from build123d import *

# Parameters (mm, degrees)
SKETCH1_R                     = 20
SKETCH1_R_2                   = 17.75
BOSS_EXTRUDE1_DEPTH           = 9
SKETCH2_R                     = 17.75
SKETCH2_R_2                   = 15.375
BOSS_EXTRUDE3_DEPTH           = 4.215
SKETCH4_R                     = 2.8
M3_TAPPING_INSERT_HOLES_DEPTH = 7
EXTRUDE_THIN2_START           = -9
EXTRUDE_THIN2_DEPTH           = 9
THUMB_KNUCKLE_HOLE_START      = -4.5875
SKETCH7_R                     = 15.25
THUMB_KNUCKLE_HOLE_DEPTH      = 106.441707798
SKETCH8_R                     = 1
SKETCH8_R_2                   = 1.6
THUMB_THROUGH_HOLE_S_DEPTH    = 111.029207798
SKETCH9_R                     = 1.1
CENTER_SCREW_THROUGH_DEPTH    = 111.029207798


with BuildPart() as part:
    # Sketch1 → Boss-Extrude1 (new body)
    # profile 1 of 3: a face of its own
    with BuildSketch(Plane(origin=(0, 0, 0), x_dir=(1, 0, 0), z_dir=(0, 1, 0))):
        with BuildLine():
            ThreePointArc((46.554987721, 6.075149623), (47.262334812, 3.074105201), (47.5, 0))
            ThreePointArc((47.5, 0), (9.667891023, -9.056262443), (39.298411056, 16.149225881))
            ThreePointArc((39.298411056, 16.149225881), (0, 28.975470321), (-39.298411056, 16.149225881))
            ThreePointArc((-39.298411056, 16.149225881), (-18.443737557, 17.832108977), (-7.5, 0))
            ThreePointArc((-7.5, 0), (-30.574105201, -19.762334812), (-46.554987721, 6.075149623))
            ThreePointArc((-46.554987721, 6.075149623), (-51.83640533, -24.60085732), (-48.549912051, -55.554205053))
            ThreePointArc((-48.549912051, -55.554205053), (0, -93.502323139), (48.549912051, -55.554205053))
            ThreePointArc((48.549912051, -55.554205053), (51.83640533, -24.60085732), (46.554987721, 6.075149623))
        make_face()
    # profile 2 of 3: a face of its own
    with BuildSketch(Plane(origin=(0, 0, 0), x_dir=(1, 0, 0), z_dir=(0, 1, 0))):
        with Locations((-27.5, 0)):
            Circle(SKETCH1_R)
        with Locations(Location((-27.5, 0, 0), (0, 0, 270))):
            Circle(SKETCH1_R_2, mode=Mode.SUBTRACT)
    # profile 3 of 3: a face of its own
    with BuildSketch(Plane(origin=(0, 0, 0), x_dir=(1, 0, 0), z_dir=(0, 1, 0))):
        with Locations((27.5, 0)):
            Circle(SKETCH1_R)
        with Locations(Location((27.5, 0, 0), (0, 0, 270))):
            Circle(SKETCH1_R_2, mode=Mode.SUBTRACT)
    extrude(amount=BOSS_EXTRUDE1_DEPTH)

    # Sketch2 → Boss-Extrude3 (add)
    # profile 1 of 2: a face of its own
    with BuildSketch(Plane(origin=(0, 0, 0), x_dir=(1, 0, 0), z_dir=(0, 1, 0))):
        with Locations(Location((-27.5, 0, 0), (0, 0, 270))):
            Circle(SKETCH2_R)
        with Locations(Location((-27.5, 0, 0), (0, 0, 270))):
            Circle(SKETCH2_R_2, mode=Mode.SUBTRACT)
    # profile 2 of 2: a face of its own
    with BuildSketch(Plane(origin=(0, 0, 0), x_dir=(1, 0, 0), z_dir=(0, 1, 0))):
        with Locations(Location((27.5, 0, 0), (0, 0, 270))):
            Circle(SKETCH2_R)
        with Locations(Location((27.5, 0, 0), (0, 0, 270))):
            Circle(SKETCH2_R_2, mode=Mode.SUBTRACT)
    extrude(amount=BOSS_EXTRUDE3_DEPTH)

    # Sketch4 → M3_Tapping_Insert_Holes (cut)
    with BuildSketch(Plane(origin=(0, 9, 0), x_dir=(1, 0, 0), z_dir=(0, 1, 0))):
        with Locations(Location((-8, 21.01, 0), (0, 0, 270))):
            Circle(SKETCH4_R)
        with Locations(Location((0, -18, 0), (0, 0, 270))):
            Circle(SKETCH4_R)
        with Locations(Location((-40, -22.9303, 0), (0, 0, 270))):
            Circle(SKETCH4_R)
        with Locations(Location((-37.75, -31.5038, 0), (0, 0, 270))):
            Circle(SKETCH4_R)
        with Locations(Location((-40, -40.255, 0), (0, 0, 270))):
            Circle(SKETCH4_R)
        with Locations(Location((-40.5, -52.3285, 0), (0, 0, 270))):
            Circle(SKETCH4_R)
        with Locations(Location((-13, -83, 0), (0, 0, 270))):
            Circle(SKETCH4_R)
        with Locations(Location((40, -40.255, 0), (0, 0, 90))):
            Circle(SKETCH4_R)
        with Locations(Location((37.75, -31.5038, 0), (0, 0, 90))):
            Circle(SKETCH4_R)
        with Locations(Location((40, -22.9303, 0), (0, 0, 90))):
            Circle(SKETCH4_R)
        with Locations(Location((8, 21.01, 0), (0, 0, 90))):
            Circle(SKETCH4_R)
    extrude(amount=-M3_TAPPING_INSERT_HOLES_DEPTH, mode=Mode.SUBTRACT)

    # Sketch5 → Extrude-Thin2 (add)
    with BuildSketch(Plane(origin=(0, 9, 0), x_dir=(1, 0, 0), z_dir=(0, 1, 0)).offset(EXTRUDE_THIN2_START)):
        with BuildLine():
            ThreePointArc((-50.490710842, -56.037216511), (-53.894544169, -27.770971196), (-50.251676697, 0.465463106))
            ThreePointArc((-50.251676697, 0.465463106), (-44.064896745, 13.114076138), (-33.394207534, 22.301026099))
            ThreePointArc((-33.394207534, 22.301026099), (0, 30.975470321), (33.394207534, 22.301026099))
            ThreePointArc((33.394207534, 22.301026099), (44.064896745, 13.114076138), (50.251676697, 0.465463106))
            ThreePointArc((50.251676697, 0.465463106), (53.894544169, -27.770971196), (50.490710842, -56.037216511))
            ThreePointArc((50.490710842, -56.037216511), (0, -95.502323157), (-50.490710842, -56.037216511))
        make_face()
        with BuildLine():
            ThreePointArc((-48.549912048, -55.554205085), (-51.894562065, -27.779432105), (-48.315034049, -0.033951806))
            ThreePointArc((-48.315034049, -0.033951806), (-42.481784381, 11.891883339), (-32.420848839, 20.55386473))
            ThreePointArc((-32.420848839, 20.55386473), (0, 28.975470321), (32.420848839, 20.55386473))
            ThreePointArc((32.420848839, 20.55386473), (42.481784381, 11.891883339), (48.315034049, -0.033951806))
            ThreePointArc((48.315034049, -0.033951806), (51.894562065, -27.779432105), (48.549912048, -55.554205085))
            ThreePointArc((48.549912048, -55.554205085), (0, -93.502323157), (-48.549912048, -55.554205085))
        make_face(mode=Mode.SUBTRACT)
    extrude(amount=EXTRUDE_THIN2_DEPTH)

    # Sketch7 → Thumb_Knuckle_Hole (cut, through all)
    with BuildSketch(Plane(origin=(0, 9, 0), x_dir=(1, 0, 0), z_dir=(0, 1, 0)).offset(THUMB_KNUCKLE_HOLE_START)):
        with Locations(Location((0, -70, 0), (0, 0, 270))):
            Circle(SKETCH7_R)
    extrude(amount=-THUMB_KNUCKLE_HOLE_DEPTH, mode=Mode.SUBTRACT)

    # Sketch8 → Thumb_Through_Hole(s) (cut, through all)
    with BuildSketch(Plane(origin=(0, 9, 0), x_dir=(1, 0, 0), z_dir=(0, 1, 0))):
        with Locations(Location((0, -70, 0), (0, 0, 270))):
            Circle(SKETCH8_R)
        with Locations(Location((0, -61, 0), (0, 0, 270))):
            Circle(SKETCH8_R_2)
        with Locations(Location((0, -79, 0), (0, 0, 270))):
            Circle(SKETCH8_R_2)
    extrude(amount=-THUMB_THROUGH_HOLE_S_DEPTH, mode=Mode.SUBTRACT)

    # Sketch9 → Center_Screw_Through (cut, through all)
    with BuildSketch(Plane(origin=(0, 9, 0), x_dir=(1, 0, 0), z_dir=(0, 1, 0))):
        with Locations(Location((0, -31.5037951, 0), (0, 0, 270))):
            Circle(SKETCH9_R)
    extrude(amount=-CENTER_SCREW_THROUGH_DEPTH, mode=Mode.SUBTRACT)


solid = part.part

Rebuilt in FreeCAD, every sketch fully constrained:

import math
import FreeCAD as App
import Part
import Sketcher
from FreeCAD import Vector
Q = App.Units.Quantity

doc = App.newDocument("Part")
body = doc.addObject("PartDesign::Body", "Body")

# Sketch on XZ plane
sketch1 = body.newObject("Sketcher::SketchObject", "Sketch")
sketch1.AttachmentSupport = (doc.getObject("XZ_Plane"), [""])
sketch1.MapMode = "FlatFace"
sketch1.addGeometry(Part.ArcOfCircle(Part.Circle(Vector(0, 38, 0), Vector(0, 0, 1), 67), math.radians(-126), math.radians(-54)), False)
sketch1.addGeometry(Part.ArcOfCircle(Part.Circle(Vector(-28, 0, 0), Vector(0, 0, 1), 20), math.radians(-162), math.radians(-126)), False)
sketch1.addGeometry(Part.ArcOfCircle(Part.Circle(Vector(61, 28, 0), Vector(0, 0, 1), 113), math.radians(166), math.radians(198)), False)
sketch1.addGeometry(Part.ArcOfCircle(Part.Circle(Vector(0, 43, 0), Vector(0, 0, 1), 50), math.radians(14), math.radians(166)), False)
sketch1.addGeometry(Part.ArcOfCircle(Part.Circle(Vector(-61, 28, 0), Vector(0, 0, 1), 113), math.radians(-18), math.radians(14)), False)
sketch1.addGeometry(Part.ArcOfCircle(Part.Circle(Vector(28, 0, 0), Vector(0, 0, 1), 20), math.radians(-54), math.radians(-18)), False)
sketch1.addGeometry(Part.Circle(Vector(28, 0, 0), Vector(0, 0, 1), 18), False)
sketch1.addGeometry(Part.Circle(Vector(-28, 0, 0), Vector(0, 0, 1), 18), False)
sketch1.addConstraint(Sketcher.Constraint("Tangent", 0, 1, 1, 2))
sketch1.addConstraint(Sketcher.Constraint("Tangent", 1, 1, 2, 2))
sketch1.addConstraint(Sketcher.Constraint("Tangent", 2, 1, 3, 2))
sketch1.addConstraint(Sketcher.Constraint("Tangent", 3, 1, 4, 2))
sketch1.addConstraint(Sketcher.Constraint("Tangent", 4, 1, 5, 2))
sketch1.addConstraint(Sketcher.Constraint("Tangent", 5, 1, 0, 2))
sketch1.addConstraint(Sketcher.Constraint("Coincident", 6, 3, 5, 3))
sketch1.addConstraint(Sketcher.Constraint("Coincident", 7, 3, 1, 3))
sketch1.addConstraint(Sketcher.Constraint("Equal", 2, 4))
sketch1.addConstraint(Sketcher.Constraint("Equal", 1, 5))
sketch1.addConstraint(Sketcher.Constraint("Equal", 6, 7))
sketch1.addConstraint(Sketcher.Constraint("Symmetric", 1, 3, 5, 3, -1, 1))
sketch1.addConstraint(Sketcher.Constraint("Symmetric", 2, 3, 4, 3, -2))
sketch1.addConstraint(Sketcher.Constraint("Radius", 1, Q("20 mm")))
sketch1.addConstraint(Sketcher.Constraint("Diameter", 6, Q("35.5 mm")))
sketch1.addConstraint(Sketcher.Constraint("DistanceX", 1, 3, 5, 3, Q("55 mm")))
sketch1.addConstraint(Sketcher.Constraint("Radius", 2, Q("113.026801 mm")))
sketch1.addConstraint(Sketcher.Constraint("Radius", 0, Q("66.616447 mm")))
sketch1.addConstraint(Sketcher.Constraint("Radius", 3, Q("50.030856 mm")))
sketch1.addConstraint(Sketcher.Constraint("DistanceY", 1, 1, -1, 1, Q("6.07515 mm")))
pad1 = body.newObject("PartDesign::Pad", "Pad")
pad1.Profile = sketch1
pad1.Length = 9
pad1.Reversed = True

# Sketch on XZ plane
sketch2 = body.newObject("Sketcher::SketchObject", "Sketch001")
sketch2.AttachmentSupport = (doc.getObject("XZ_Plane"), [""])
sketch2.MapMode = "FlatFace"
sketch2.addGeometry(Part.Circle(Vector(-28, 0, 0), Vector(0, 0, 1), 18), False)
sketch2.addGeometry(Part.Circle(Vector(-28, 0, 0), Vector(0, 0, 1), 15), False)
sketch2.addGeometry(Part.Circle(Vector(28, 0, 0), Vector(0, 0, 1), 18), False)
sketch2.addGeometry(Part.Circle(Vector(28, 0, 0), Vector(0, 0, 1), 15), False)
sketch2.addConstraint(Sketcher.Constraint("Coincident", 1, 3, 0, 3))
sketch2.addConstraint(Sketcher.Constraint("Coincident", 3, 3, 2, 3))
sketch2.addConstraint(Sketcher.Constraint("Equal", 0, 2))
sketch2.addConstraint(Sketcher.Constraint("Equal", 1, 3))
sketch2.addConstraint(Sketcher.Constraint("Symmetric", 0, 3, 2, 3, -1, 1))
sketch2.addConstraint(Sketcher.Constraint("PointOnObject", 0, 3, -1))
sketch2.addConstraint(Sketcher.Constraint("Diameter", 0, Q("35.5 mm")))
sketch2.addConstraint(Sketcher.Constraint("Diameter", 1, Q("30.75 mm")))
sketch2.addConstraint(Sketcher.Constraint("DistanceX", 0, 3, 2, 3, Q("55 mm")))
pad2 = body.newObject("PartDesign::Pad", "Pad001")
pad2.Profile = sketch2
pad2.Length = 4.215
pad2.Reversed = True

# Sketch on XZ plane
sketch3 = body.newObject("Sketcher::SketchObject", "Sketch002")
sketch3.AttachmentSupport = (doc.getObject("XZ_Plane"), [""])
sketch3.MapMode = "FlatFace"
sketch3.AttachmentOffset = App.Placement(Vector(0, 0, -9), App.Rotation())
sketch3.addGeometry(Part.Circle(Vector(-8, -21, 0), Vector(0, 0, 1), 2.8), False)
sketch3.addGeometry(Part.Circle(Vector(0, 18, 0), Vector(0, 0, 1), 2.8), False)
sketch3.addGeometry(Part.Circle(Vector(-40, 22.9, 0), Vector(0, 0, 1), 2.8), False)
sketch3.addGeometry(Part.Circle(Vector(-37.8, 31.5, 0), Vector(0, 0, 1), 2.8), False)
sketch3.addGeometry(Part.Circle(Vector(-40, 40.3, 0), Vector(0, 0, 1), 2.8), False)
sketch3.addGeometry(Part.Circle(Vector(-40.5, 52.3, 0), Vector(0, 0, 1), 2.8), False)
sketch3.addGeometry(Part.Circle(Vector(-13, 83, 0), Vector(0, 0, 1), 2.8), False)
sketch3.addGeometry(Part.Circle(Vector(40, 40.3, 0), Vector(0, 0, 1), 2.8), False)
sketch3.addGeometry(Part.Circle(Vector(37.8, 31.5, 0), Vector(0, 0, 1), 2.8), False)
sketch3.addGeometry(Part.Circle(Vector(40, 22.9, 0), Vector(0, 0, 1), 2.8), False)
sketch3.addGeometry(Part.Circle(Vector(8, -21, 0), Vector(0, 0, 1), 2.8), False)
sketch3.addConstraint(Sketcher.Constraint("Equal", 0, 1))
sketch3.addConstraint(Sketcher.Constraint("Equal", 1, 2))
sketch3.addConstraint(Sketcher.Constraint("Equal", 2, 3))
sketch3.addConstraint(Sketcher.Constraint("Equal", 3, 4))
sketch3.addConstraint(Sketcher.Constraint("Equal", 4, 5))
sketch3.addConstraint(Sketcher.Constraint("Equal", 5, 6))
sketch3.addConstraint(Sketcher.Constraint("Equal", 6, 7))
sketch3.addConstraint(Sketcher.Constraint("Equal", 7, 8))
sketch3.addConstraint(Sketcher.Constraint("Equal", 8, 9))
sketch3.addConstraint(Sketcher.Constraint("Equal", 9, 10))
sketch3.addConstraint(Sketcher.Constraint("Symmetric", 4, 3, 7, 3, -2))
sketch3.addConstraint(Sketcher.Constraint("Symmetric", 3, 3, 8, 3, -2))
sketch3.addConstraint(Sketcher.Constraint("Symmetric", 2, 3, 9, 3, -2))
sketch3.addConstraint(Sketcher.Constraint("Symmetric", 0, 3, 10, 3, -2))
sketch3.addConstraint(Sketcher.Constraint("PointOnObject", 1, 3, -2))
sketch3.addConstraint(Sketcher.Constraint("Vertical", 2, 3, 4, 3))
sketch3.addConstraint(Sketcher.Constraint("Diameter", 0, Q("5.6 mm")))
sketch3.addConstraint(Sketcher.Constraint("DistanceX", 0, 3, -1, 1, Q("8 mm")))
sketch3.addConstraint(Sketcher.Constraint("DistanceY", -1, 1, 1, 3, Q("18 mm")))
sketch3.addConstraint(Sketcher.Constraint("DistanceX", 2, 3, -1, 1, Q("40 mm")))
sketch3.addConstraint(Sketcher.Constraint("DistanceX", 6, 3, -1, 1, Q("13 mm")))
sketch3.addConstraint(Sketcher.Constraint("DistanceY", -1, 1, 6, 3, Q("83 mm")))
sketch3.addConstraint(Sketcher.Constraint("DistanceX", 5, 3, -1, 1, Q("40.5 mm")))
sketch3.addConstraint(Sketcher.Constraint("DistanceX", 3, 3, 8, 3, Q("75.5 mm")))
sketch3.addConstraint(Sketcher.Constraint("DistanceY", 0, 3, -1, 1, Q("21.01 mm")))
sketch3.addConstraint(Sketcher.Constraint("DistanceY", -1, 1, 4, 3, Q("40.255 mm")))
sketch3.addConstraint(Sketcher.Constraint("DistanceY", -1, 1, 2, 3, Q("22.9303 mm")))
sketch3.addConstraint(Sketcher.Constraint("DistanceY", -1, 1, 3, 3, Q("31.5038 mm")))
sketch3.addConstraint(Sketcher.Constraint("DistanceY", -1, 1, 5, 3, Q("52.3285 mm")))
pocket1 = body.newObject("PartDesign::Pocket", "Pocket")
pocket1.Profile = sketch3
pocket1.Length = 7
pocket1.Reversed = True

# Sketch on XZ plane
sketch4 = body.newObject("Sketcher::SketchObject", "Sketch003")
sketch4.AttachmentSupport = (doc.getObject("XZ_Plane"), [""])
sketch4.MapMode = "FlatFace"
sketch4.addGeometry(Part.ArcOfCircle(Part.Circle(Vector(61, 28, 0), Vector(0, 0, 1), 115), math.radians(166), math.radians(194)), False)
sketch4.addGeometry(Part.ArcOfCircle(Part.Circle(Vector(0, 43, 0), Vector(0, 0, 1), 52), math.radians(14), math.radians(166)), False)
sketch4.addGeometry(Part.ArcOfCircle(Part.Circle(Vector(-61, 28, 0), Vector(0, 0, 1), 115), math.radians(-14), math.radians(14)), False)
sketch4.addGeometry(Part.ArcOfCircle(Part.Circle(Vector(16, 8, 0), Vector(0, 0, 1), 35), math.radians(-61), math.radians(-14)), False)
sketch4.addGeometry(Part.ArcOfCircle(Part.Circle(Vector(0, 38, 0), Vector(0, 0, 1), 69), math.radians(-119), math.radians(-61)), False)
sketch4.addGeometry(Part.ArcOfCircle(Part.Circle(Vector(-16, 8, 0), Vector(0, 0, 1), 35), math.radians(-166), math.radians(-119)), False)
sketch4.addGeometry(Part.ArcOfCircle(Part.Circle(Vector(61, 28, 0), Vector(0, 0, 1), 113), math.radians(166), math.radians(194)), False)
sketch4.addGeometry(Part.ArcOfCircle(Part.Circle(Vector(-16, 8, 0), Vector(0, 0, 1), 33), math.radians(-166), math.radians(-119)), False)
sketch4.addGeometry(Part.ArcOfCircle(Part.Circle(Vector(0, 38, 0), Vector(0, 0, 1), 67), math.radians(-119), math.radians(-61)), False)
sketch4.addGeometry(Part.ArcOfCircle(Part.Circle(Vector(16, 8, 0), Vector(0, 0, 1), 33), math.radians(-61), math.radians(-14)), False)
sketch4.addGeometry(Part.ArcOfCircle(Part.Circle(Vector(-61, 28, 0), Vector(0, 0, 1), 113), math.radians(-14), math.radians(14)), False)
sketch4.addGeometry(Part.ArcOfCircle(Part.Circle(Vector(0, 43, 0), Vector(0, 0, 1), 50), math.radians(14), math.radians(166)), False)
sketch4.addConstraint(Sketcher.Constraint("Tangent", 0, 1, 1, 2))
sketch4.addConstraint(Sketcher.Constraint("Tangent", 1, 1, 2, 2))
sketch4.addConstraint(Sketcher.Constraint("Tangent", 2, 1, 3, 2))
sketch4.addConstraint(Sketcher.Constraint("Tangent", 3, 1, 4, 2))
sketch4.addConstraint(Sketcher.Constraint("Tangent", 4, 1, 5, 2))
sketch4.addConstraint(Sketcher.Constraint("Tangent", 5, 1, 0, 2))
sketch4.addConstraint(Sketcher.Constraint("Tangent", 6, 2, 7, 1))
sketch4.addConstraint(Sketcher.Constraint("Tangent", 7, 2, 8, 1))
sketch4.addConstraint(Sketcher.Constraint("Tangent", 8, 2, 9, 1))
sketch4.addConstraint(Sketcher.Constraint("Tangent", 9, 2, 10, 1))
sketch4.addConstraint(Sketcher.Constraint("Tangent", 10, 2, 11, 1))
sketch4.addConstraint(Sketcher.Constraint("Tangent", 11, 2, 6, 1))
sketch4.addConstraint(Sketcher.Constraint("Coincident", 6, 3, 0, 3))
sketch4.addConstraint(Sketcher.Constraint("Coincident", 7, 3, 5, 3))
sketch4.addConstraint(Sketcher.Constraint("Coincident", 8, 3, 4, 3))
sketch4.addConstraint(Sketcher.Constraint("Coincident", 9, 3, 3, 3))
sketch4.addConstraint(Sketcher.Constraint("Coincident", 10, 3, 2, 3))
sketch4.addConstraint(Sketcher.Constraint("Equal", 0, 2))
sketch4.addConstraint(Sketcher.Constraint("Equal", 3, 5))
sketch4.addConstraint(Sketcher.Constraint("Symmetric", 0, 3, 2, 3, -2))
sketch4.addConstraint(Sketcher.Constraint("PointOnObject", 4, 3, -2))
sketch4.addConstraint(Sketcher.Constraint("Radius", 3, Q("35 mm")))
sketch4.addConstraint(Sketcher.Constraint("Radius", 7, Q("33 mm")))
sketch4.addConstraint(Sketcher.Constraint("Radius", 0, Q("115.026801 mm")))
sketch4.addConstraint(Sketcher.Constraint("Radius", 1, Q("52.030856 mm")))
sketch4.addConstraint(Sketcher.Constraint("Radius", 4, Q("68.616447 mm")))
sketch4.addConstraint(Sketcher.Constraint("Radius", 11, Q("50.030856 mm")))
sketch4.addConstraint(Sketcher.Constraint("DistanceY", 7, 2, 5, 1, Q("20.088402 mm")))
sketch4.addConstraint(Sketcher.Constraint("DistanceX", -1, 1, 3, 3, Q("16.36043 mm")))
sketch4.addConstraint(Sketcher.Constraint("DistanceY", -1, 1, 6, 2, Q("0.033952 mm")))
pad3 = body.newObject("PartDesign::Pad", "Pad002")
pad3.Profile = sketch4
pad3.Length = 9
pad3.Reversed = True

# Sketch on XZ plane
sketch5 = body.newObject("Sketcher::SketchObject", "Sketch004")
sketch5.AttachmentSupport = (doc.getObject("XZ_Plane"), [""])
sketch5.MapMode = "FlatFace"
sketch5.AttachmentOffset = App.Placement(Vector(0, 0, -4.4125), App.Rotation())
sketch5.addGeometry(Part.Circle(Vector(0, 70, 0), Vector(0, 0, 1), 15), False)
sketch5.addConstraint(Sketcher.Constraint("PointOnObject", 0, 3, -2))
sketch5.addConstraint(Sketcher.Constraint("Diameter", 0, Q("30.5 mm")))
sketch5.addConstraint(Sketcher.Constraint("DistanceY", -1, 1, 0, 3, Q("70 mm")))
pocket2 = body.newObject("PartDesign::Pocket", "Pocket001")
pocket2.Profile = sketch5
pocket2.Type = "ThroughAll"
pocket2.Reversed = True

# Sketch on XZ plane
sketch6 = body.newObject("Sketcher::SketchObject", "Sketch005")
sketch6.AttachmentSupport = (doc.getObject("XZ_Plane"), [""])
sketch6.MapMode = "FlatFace"
sketch6.AttachmentOffset = App.Placement(Vector(0, 0, -9), App.Rotation())
sketch6.addGeometry(Part.Circle(Vector(0, 70, 0), Vector(0, 0, 1), 1), False)
sketch6.addGeometry(Part.Circle(Vector(0, 61, 0), Vector(0, 0, 1), 1.6), False)
sketch6.addGeometry(Part.Circle(Vector(0, 79, 0), Vector(0, 0, 1), 1.6), False)
sketch6.addConstraint(Sketcher.Constraint("Equal", 1, 2))
sketch6.addConstraint(Sketcher.Constraint("PointOnObject", 0, 3, -2))
sketch6.addConstraint(Sketcher.Constraint("PointOnObject", 1, 3, -2))
sketch6.addConstraint(Sketcher.Constraint("PointOnObject", 2, 3, -2))
sketch6.addConstraint(Sketcher.Constraint("Diameter", 0, Q("2 mm")))
sketch6.addConstraint(Sketcher.Constraint("Diameter", 1, Q("3.2 mm")))
sketch6.addConstraint(Sketcher.Constraint("DistanceY", -1, 1, 0, 3, Q("70 mm")))
sketch6.addConstraint(Sketcher.Constraint("DistanceY", -1, 1, 1, 3, Q("61 mm")))
sketch6.addConstraint(Sketcher.Constraint("DistanceY", -1, 1, 2, 3, Q("79 mm")))
pocket3 = body.newObject("PartDesign::Pocket", "Pocket002")
pocket3.Profile = sketch6
pocket3.Type = "ThroughAll"
pocket3.Reversed = True

# Sketch on XZ plane
sketch7 = body.newObject("Sketcher::SketchObject", "Sketch006")
sketch7.AttachmentSupport = (doc.getObject("XZ_Plane"), [""])
sketch7.MapMode = "FlatFace"
sketch7.AttachmentOffset = App.Placement(Vector(0, 0, -9), App.Rotation())
sketch7.addGeometry(Part.Circle(Vector(0, 31.5, 0), Vector(0, 0, 1), 1.1), False)
sketch7.addConstraint(Sketcher.Constraint("PointOnObject", 0, 3, -2))
sketch7.addConstraint(Sketcher.Constraint("Diameter", 0, Q("2.2 mm")))
sketch7.addConstraint(Sketcher.Constraint("DistanceY", -1, 1, 0, 3, Q("31.503795 mm")))
pocket4 = body.newObject("PartDesign::Pocket", "Pocket003")
pocket4.Profile = sketch7
pocket4.Type = "ThroughAll"
pocket4.Reversed = True

doc.recompute()
